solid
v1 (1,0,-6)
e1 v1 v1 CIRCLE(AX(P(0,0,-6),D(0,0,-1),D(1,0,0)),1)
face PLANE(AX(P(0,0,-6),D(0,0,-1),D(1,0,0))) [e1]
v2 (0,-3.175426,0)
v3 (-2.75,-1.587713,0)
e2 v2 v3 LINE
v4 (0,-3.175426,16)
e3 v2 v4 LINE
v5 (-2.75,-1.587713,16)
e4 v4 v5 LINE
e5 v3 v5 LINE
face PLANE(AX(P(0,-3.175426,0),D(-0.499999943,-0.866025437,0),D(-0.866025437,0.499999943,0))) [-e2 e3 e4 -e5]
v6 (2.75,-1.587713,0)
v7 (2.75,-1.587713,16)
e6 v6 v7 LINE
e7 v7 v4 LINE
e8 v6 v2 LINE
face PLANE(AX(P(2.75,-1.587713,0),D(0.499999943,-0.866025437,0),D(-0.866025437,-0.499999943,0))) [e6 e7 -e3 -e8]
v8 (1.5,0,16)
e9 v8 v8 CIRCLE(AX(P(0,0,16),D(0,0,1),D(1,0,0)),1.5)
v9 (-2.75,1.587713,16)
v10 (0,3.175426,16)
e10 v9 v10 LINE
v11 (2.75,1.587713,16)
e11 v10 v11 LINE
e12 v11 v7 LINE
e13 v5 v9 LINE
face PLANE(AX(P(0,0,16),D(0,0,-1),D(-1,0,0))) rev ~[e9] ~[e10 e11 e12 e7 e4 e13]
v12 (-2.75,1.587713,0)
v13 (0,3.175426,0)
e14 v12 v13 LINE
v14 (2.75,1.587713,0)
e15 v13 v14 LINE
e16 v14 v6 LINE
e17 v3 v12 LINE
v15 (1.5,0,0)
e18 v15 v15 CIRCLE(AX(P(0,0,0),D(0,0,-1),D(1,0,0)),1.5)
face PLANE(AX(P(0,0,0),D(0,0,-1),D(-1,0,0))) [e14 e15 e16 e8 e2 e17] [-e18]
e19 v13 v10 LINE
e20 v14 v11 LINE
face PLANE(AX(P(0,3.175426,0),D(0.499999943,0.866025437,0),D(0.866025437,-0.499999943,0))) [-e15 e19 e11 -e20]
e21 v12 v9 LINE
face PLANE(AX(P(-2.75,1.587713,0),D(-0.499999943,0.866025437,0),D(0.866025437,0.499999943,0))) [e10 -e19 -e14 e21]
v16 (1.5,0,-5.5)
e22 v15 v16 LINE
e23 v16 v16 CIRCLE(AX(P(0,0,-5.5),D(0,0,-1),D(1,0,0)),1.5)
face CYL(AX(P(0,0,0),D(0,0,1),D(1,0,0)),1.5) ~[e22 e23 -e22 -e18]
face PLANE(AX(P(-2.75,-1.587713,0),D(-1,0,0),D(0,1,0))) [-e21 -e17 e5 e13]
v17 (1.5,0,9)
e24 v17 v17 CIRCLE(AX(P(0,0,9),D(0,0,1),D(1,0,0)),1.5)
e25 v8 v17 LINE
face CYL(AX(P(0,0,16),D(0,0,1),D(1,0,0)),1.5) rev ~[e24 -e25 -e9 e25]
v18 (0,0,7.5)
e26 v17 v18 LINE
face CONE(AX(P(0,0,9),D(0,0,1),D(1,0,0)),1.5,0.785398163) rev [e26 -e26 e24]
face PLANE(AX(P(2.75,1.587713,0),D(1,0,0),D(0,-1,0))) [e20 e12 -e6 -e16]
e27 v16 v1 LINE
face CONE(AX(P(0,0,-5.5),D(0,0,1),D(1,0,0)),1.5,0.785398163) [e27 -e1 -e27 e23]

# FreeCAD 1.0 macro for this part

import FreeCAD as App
import Part
import Sketcher
Q = App.Units.Quantity


def edges_at(feature, points):
    """Names of the edges that pass closest to the given points."""
    edges = feature.Shape.Edges
    near = lambda p: min(range(len(edges)), key=lambda i: edges[i].distToShape(Part.Vertex(*p))[0])
    return sorted({f"Edge{near(p) + 1}" for p in points})

doc = App.newDocument("Part")
params = doc.addObject("Spreadsheet::Sheet", "Params")
for row, (alias, value) in enumerate([
    ("pad1_length", "16 mm"),
    ("sketch2_diameter", "3 mm"),
    ("pad2_length", "6 mm"),
    ("sketch3_diameter", "3 mm"),
    ("pocket1_length", "8.5 mm"),
    ("chamfer_size", "1.5 mm"),
    ("chamfer2_size", "0.5 mm"),
], start=1):
    params.set(f"A{row}", alias)
    params.set(f"B{row}", "=" + value)
    params.setAlias(f"B{row}", alias)

body = doc.addObject("PartDesign::Body", "Body")

# Sketch on XY plane
sketch1 = doc.addObject("Sketcher::SketchObject", "Sketch")
body.addObject(sketch1)
sketch1.AttachmentSupport = (doc.XY_Plane, [""])
sketch1.MapMode = "FlatFace"
sketch1.addGeometry(Part.LineSegment(App.Vector(-2.8, 1.6, 0), App.Vector(-2.8, -1.6, 0)), False)
sketch1.addGeometry(Part.LineSegment(App.Vector(-2.8, -1.6, 0), App.Vector(0, -3.2, 0)), False)
sketch1.addGeometry(Part.LineSegment(App.Vector(0, -3.2, 0), App.Vector(2.8, -1.6, 0)), False)
sketch1.addGeometry(Part.LineSegment(App.Vector(2.8, -1.6, 0), App.Vector(2.8, 1.6, 0)), False)
sketch1.addGeometry(Part.LineSegment(App.Vector(2.8, 1.6, 0), App.Vector(0, 3.2, 0)), False)
sketch1.addGeometry(Part.LineSegment(App.Vector(0, 3.2, 0), App.Vector(-2.8, 1.6, 0)), False)
sketch1.addConstraint(Sketcher.Constraint("Coincident", 0, 2, 1, 1))
sketch1.addConstraint(Sketcher.Constraint("Coincident", 1, 2, 2, 1))
sketch1.addConstraint(Sketcher.Constraint("Coincident", 2, 2, 3, 1))
sketch1.addConstraint(Sketcher.Constraint("Coincident", 3, 2, 4, 1))
sketch1.addConstraint(Sketcher.Constraint("Coincident", 4, 2, 5, 1))
sketch1.addConstraint(Sketcher.Constraint("Coincident", 5, 2, 0, 1))
sketch1.addConstraint(Sketcher.Constraint("Vertical", 0))
sketch1.addConstraint(Sketcher.Constraint("Vertical", 3))
sketch1.addConstraint(Sketcher.Constraint("Symmetric", 0, 2, 3, 2, -1, 1))
sketch1.addConstraint(Sketcher.Constraint("Symmetric", 1, 2, 4, 2, -1, 1))
sketch1.addConstraint(Sketcher.Constraint("PointOnObject", 1, 2, -2))
sketch1.addConstraint(Sketcher.Constraint("Parallel", 2, 5))
sketch1.addConstraint(Sketcher.Constraint("Horizontal", 0, 2, 2, 2))
sketch1.addConstraint(Sketcher.Constraint("Angle", 1, Q("-29.999996 deg")))
sketch1.addConstraint(Sketcher.Constraint("DistanceX", 0, 2, 2, 2, Q("5.5 mm")))
sketch1.addConstraint(Sketcher.Constraint("DistanceY", 0, 2, 0, 1, Q("3.175426 mm")))
pad1 = doc.addObject("PartDesign::Pad", "Pad")
body.addObject(pad1)
pad1.Profile = sketch1
pad1.setExpression("Length", "Params.pad1_length")

# Sketch on XY plane
sketch2 = doc.addObject("Sketcher::SketchObject", "Sketch001")
body.addObject(sketch2)
sketch2.AttachmentSupport = (doc.XY_Plane, [""])
sketch2.MapMode = "FlatFace"
sketch2.addGeometry(Part.Circle(App.Vector(0, 0, 0), App.Vector(0, 0, 1), 1.5), False)
sketch2.addConstraint(Sketcher.Constraint("Coincident", 0, 3, -1, 1))
sketch2.addConstraint(Sketcher.Constraint("Diameter", 0, Q("3 mm")))
sketch2.setExpression("Constraints[1]", "Params.sketch2_diameter")
pad2 = doc.addObject("PartDesign::Pad", "Pad001")
body.addObject(pad2)
pad2.Profile = sketch2
pad2.setExpression("Length", "Params.pad2_length")
pad2.Reversed = True

# Sketch on XY plane
sketch3 = doc.addObject("Sketcher::SketchObject", "Sketch002")
body.addObject(sketch3)
sketch3.AttachmentSupport = (doc.XY_Plane, [""])
sketch3.MapMode = "FlatFace"
sketch3.AttachmentOffset = App.Placement(App.Vector(0, 0, 16), App.Rotation())
sketch3.addGeometry(Part.Circle(App.Vector(0, 0, 0), App.Vector(0, 0, 1), 1.5), False)
sketch3.addConstraint(Sketcher.Constraint("Coincident", 0, 3, -1, 1))
sketch3.addConstraint(Sketcher.Constraint("Diameter", 0, Q("3 mm")))
sketch3.setExpression("Constraints[1]", "Params.sketch3_diameter")
pocket1 = doc.addObject("PartDesign::Pocket", "Pocket")
body.addObject(pocket1)
pocket1.Profile = sketch3
pocket1.setExpression("Length", "Params.pocket1_length")
doc.recompute()

chamfer = doc.addObject("PartDesign::Chamfer", "Chamfer")
body.addObject(chamfer)
chamfer.Base = (pocket1, edges_at(pocket1, [(-1.5, 0, 7.5)]))
chamfer.setExpression("Size", "Params.chamfer_size")
doc.recompute()

chamfer2 = doc.addObject("PartDesign::Chamfer", "Chamfer001")
body.addObject(chamfer2)
chamfer2.Base = (chamfer, edges_at(chamfer, [(-1.5, 0, -6)]))
chamfer2.setExpression("Size", "Params.chamfer2_size")

doc.recompute()
